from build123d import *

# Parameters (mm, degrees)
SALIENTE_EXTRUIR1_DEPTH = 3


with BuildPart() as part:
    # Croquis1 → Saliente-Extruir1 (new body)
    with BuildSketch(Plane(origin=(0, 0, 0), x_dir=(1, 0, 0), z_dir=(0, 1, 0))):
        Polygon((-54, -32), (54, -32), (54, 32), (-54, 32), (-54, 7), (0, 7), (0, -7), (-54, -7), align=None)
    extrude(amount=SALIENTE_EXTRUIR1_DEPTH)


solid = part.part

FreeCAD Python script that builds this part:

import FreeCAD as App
import Part
import Sketcher


def add_polygon(sketch, points):
    """Adds a closed chain of lines whose ends are joined by coincident constraints."""
    first, n = sketch.GeometryCount, len(points)
    for a, b in zip(points, points[1:] + points[:1]):
        sketch.addGeometry(Part.LineSegment(App.Vector(*a, 0), App.Vector(*b, 0)), False)
    for i in range(n):
        sketch.addConstraint(Sketcher.Constraint("Coincident", first + i, 2, first + (i + 1) % n, 1))

doc = App.newDocument("Part")
body = doc.addObject("PartDesign::Body", "Body")

sketch1 = body.newObject("Sketcher::SketchObject", "Sketch")
sketch1.AttachmentSupport = (doc.getObject("XZ_Plane"), [""])
sketch1.MapMode = "FlatFace"
add_polygon(sketch1, [(-54, 32), (54, 32), (54, -32), (-54, -32), (-54, -7), (0, -7), (0, 7), (-54, 7)])
sketch1.addConstraint([
    Sketcher.Constraint("Horizontal", 0),
    Sketcher.Constraint("Vertical", 1),
    Sketcher.Constraint("Horizontal", 2),
    Sketcher.Constraint("Vertical", 3),
    Sketcher.Constraint("Horizontal", 4),
    Sketcher.Constraint("Vertical", 5),
    Sketcher.Constraint("Horizontal", 6),
    Sketcher.Constraint("Vertical", 7),
    Sketcher.Constraint("Symmetric", 0, 2, 2, 2, -1, 1),
    Sketcher.Constraint("Symmetric", 4, 2, 5, 2, -1, 1),
    Sketcher.Constraint("Vertical", 3, 2, 6, 2),
    Sketcher.Constraint("DistanceX", 0, 1, 0, 2, 108.0),
    Sketcher.Constraint("DistanceY", 1, 2, 1, 1, 64.0),
    Sketcher.Constraint("DistanceY", 3, 1, 3, 2, 25.0),
])
pad1 = body.newObject("PartDesign::Pad", "Pad")
pad1.Profile = sketch1
pad1.Length = 3
pad1.Reversed = True

doc.recompute()
